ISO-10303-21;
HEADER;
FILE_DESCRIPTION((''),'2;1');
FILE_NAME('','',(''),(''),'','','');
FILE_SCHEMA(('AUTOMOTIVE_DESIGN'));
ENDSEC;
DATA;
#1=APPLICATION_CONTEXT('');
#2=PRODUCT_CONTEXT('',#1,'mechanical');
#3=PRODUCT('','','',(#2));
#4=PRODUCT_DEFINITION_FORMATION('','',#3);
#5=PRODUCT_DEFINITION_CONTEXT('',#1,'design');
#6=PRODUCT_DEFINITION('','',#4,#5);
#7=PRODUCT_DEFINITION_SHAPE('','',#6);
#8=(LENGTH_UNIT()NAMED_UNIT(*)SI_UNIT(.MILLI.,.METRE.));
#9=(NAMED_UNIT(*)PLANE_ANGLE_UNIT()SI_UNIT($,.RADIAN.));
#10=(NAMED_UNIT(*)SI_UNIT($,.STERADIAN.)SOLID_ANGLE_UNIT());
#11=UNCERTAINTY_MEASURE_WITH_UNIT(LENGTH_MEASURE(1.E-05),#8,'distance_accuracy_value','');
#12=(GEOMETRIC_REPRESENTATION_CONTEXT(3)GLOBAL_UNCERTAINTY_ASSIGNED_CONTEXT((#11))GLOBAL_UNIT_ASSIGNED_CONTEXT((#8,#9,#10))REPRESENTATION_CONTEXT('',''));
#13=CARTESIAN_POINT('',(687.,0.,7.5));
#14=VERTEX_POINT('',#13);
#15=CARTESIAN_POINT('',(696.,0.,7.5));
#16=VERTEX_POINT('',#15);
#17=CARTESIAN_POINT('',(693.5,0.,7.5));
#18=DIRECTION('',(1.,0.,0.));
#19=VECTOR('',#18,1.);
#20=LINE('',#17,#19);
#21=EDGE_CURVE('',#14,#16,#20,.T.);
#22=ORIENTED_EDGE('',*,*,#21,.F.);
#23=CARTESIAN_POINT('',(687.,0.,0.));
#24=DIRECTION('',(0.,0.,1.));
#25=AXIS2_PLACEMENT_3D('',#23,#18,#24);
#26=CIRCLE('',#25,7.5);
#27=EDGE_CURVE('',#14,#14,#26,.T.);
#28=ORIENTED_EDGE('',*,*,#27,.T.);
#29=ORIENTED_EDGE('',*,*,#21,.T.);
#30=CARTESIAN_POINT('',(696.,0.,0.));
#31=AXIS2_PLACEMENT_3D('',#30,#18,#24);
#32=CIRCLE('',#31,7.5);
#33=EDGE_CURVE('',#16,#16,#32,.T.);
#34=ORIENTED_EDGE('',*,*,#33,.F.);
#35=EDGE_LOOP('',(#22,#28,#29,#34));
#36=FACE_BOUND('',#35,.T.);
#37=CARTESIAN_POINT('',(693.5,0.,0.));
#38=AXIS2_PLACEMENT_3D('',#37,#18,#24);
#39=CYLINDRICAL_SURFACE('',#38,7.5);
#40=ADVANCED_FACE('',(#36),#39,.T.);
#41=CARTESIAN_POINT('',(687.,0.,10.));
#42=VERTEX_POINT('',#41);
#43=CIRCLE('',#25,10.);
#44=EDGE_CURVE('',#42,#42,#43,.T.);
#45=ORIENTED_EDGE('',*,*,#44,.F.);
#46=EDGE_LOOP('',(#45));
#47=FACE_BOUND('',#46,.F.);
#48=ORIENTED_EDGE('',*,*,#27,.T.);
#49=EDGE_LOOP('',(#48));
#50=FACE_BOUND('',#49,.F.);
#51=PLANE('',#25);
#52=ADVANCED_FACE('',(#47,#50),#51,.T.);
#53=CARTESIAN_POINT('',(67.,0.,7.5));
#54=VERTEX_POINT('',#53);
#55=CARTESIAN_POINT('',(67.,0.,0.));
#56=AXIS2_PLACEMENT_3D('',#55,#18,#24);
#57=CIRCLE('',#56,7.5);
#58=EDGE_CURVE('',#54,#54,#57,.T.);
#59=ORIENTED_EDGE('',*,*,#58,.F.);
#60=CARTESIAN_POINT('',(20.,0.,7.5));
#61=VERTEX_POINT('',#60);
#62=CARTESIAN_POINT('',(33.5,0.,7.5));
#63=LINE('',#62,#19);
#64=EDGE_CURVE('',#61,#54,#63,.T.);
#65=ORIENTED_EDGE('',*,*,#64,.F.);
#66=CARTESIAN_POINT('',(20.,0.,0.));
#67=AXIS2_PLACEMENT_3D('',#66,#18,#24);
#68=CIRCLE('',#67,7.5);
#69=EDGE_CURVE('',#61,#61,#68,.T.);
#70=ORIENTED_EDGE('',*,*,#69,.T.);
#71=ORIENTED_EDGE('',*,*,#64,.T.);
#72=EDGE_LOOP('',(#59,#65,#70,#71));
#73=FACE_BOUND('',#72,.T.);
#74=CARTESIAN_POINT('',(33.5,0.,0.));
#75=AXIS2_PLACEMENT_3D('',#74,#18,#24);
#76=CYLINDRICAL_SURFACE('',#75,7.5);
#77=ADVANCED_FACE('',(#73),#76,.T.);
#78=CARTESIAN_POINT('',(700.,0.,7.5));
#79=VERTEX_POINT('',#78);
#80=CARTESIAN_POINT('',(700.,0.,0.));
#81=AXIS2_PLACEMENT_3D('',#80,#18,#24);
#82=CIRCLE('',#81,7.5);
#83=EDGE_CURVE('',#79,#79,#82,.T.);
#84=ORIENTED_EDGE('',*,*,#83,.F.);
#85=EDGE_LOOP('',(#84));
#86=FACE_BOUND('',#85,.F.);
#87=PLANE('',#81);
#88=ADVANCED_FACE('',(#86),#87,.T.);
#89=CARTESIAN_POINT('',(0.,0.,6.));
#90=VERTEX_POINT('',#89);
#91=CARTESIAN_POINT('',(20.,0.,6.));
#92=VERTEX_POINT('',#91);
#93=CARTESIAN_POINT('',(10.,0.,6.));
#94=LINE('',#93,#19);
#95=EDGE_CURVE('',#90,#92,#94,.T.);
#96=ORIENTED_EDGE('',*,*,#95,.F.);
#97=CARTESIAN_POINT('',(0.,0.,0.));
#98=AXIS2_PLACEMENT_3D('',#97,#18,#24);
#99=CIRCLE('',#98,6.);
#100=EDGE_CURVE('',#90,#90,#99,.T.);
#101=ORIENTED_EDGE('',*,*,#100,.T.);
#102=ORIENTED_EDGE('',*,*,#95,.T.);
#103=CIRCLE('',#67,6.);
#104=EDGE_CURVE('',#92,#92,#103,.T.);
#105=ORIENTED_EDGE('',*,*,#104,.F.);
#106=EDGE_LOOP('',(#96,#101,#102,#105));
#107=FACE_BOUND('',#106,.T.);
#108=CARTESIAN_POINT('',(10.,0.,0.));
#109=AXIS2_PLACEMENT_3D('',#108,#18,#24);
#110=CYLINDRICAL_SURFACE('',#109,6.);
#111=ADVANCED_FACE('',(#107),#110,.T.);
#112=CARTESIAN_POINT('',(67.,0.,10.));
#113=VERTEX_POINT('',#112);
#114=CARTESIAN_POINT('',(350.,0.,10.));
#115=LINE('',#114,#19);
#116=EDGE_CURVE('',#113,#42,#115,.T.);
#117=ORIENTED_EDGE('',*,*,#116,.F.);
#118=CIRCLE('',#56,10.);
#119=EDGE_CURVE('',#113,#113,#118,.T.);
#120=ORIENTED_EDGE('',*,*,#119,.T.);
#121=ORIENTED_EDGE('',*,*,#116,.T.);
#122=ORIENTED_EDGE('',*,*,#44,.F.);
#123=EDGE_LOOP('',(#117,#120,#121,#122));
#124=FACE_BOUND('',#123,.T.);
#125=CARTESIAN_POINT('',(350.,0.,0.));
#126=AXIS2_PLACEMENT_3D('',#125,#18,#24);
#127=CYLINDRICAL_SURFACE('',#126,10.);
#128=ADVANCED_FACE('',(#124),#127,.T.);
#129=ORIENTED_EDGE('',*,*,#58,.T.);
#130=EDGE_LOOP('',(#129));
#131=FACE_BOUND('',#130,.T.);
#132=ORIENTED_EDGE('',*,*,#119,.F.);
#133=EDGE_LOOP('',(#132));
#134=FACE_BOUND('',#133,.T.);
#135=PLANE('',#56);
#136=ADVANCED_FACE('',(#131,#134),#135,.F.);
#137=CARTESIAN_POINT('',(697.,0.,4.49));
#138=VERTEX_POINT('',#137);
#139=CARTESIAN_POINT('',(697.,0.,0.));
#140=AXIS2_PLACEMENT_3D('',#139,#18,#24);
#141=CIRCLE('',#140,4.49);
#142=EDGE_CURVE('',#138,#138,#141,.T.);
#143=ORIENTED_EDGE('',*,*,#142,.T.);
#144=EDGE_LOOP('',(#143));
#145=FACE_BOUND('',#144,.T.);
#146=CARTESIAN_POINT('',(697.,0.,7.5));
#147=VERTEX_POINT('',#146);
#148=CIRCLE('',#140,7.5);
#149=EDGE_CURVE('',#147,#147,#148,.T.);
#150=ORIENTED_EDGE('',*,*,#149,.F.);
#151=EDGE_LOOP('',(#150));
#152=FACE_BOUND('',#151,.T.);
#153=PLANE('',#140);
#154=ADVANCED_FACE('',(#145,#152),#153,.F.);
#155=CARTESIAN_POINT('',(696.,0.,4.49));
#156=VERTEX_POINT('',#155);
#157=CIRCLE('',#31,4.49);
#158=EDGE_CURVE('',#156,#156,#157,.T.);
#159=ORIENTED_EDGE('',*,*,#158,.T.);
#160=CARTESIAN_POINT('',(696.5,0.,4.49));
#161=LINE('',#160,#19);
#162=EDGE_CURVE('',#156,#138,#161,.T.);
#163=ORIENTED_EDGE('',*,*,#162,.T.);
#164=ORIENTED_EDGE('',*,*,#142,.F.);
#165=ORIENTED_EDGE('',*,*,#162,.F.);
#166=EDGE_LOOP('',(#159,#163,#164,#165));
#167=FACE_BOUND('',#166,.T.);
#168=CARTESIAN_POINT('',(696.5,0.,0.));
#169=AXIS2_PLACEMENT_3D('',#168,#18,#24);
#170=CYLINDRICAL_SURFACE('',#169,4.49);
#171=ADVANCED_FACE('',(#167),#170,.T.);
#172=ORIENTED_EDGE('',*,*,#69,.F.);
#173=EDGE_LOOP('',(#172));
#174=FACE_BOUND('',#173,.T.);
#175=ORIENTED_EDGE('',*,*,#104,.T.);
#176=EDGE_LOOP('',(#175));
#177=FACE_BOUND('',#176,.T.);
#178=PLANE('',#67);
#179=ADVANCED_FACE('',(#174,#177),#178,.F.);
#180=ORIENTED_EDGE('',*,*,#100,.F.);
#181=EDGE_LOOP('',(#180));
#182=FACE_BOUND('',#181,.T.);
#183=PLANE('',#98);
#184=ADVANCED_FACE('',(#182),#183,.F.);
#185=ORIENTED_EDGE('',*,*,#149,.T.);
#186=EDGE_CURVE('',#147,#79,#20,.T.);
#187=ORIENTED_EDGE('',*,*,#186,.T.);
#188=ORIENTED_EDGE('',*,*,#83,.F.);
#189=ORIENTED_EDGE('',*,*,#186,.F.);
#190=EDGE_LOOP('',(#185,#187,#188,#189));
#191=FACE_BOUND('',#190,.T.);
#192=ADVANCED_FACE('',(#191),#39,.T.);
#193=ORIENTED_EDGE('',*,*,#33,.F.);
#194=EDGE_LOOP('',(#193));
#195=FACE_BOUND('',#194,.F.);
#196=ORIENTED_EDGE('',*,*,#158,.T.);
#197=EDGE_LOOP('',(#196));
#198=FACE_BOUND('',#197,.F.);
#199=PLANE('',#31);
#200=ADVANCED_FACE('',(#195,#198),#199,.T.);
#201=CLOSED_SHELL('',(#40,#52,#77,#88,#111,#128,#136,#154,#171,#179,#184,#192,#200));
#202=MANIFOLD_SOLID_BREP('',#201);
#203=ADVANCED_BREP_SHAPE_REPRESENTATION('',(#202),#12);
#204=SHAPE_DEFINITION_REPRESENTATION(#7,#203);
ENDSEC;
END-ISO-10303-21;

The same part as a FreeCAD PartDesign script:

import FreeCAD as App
import Part
import Sketcher
Q = App.Units.Quantity


def add_polygon(sketch, points):
    """Adds a closed chain of lines whose ends are joined by coincident constraints."""
    first, n = sketch.GeometryCount, len(points)
    for a, b in zip(points, points[1:] + points[:1]):
        sketch.addGeometry(Part.LineSegment(App.Vector(*a, 0), App.Vector(*b, 0)), False)
    for i in range(n):
        sketch.addConstraint(Sketcher.Constraint("Coincident", first + i, 2, first + (i + 1) % n, 1))

doc = App.newDocument("Part")
body = doc.addObject("PartDesign::Body", "Body")

sketch1 = doc.addObject("Sketcher::SketchObject", "Sketch")
body.addObject(sketch1)
sketch1.AttachmentSupport = (doc.XZ_Plane, [""])
sketch1.MapMode = "FlatFace"
add_polygon(sketch1, [(0, 10), (0, 0), (700, 0), (700, 10)])
sketch1.addConstraint([
    Sketcher.Constraint("Vertical", 0),
    Sketcher.Constraint("Horizontal", 1),
    Sketcher.Constraint("Vertical", 2),
    Sketcher.Constraint("Horizontal", 3),
    Sketcher.Constraint("Coincident", 0, 2, -1, 1),
    Sketcher.Constraint("DistanceX", 1, 1, 1, 2, Q("700 mm")),
    Sketcher.Constraint("DistanceY", 0, 2, 0, 1, Q("10 mm")),
])
revolution = doc.addObject("PartDesign::Revolution", "Revolution")
body.addObject(revolution)
revolution.Profile = sketch1
revolution.ReferenceAxis = (sketch1, ["H_Axis"])
revolution.Angle = 360

sketch2 = doc.addObject("Sketcher::SketchObject", "Sketch001")
body.addObject(sketch2)
sketch2.AttachmentSupport = (doc.XZ_Plane, [""])
sketch2.MapMode = "FlatFace"
add_polygon(sketch2, [(0, 10), (0, 7.5), (67, 7.5), (67, 10)])
sketch2.addConstraint([
    Sketcher.Constraint("Vertical", 0),
    Sketcher.Constraint("Horizontal", 1),
    Sketcher.Constraint("Vertical", 2),
    Sketcher.Constraint("Horizontal", 3),
    Sketcher.Constraint("PointOnObject", 0, 2, -2),
    Sketcher.Constraint("DistanceX", 1, 1, 1, 2, Q("67 mm")),
    Sketcher.Constraint("DistanceY", 0, 2, 0, 1, Q("2.5 mm")),
    Sketcher.Constraint("DistanceY", -1, 1, 2, 2, Q("10 mm")),
])
groove = doc.addObject("PartDesign::Groove", "Groove")
body.addObject(groove)
groove.Profile = sketch2
groove.ReferenceAxis = (sketch2, ["H_Axis"])
groove.Angle = 360

sketch3 = doc.addObject("Sketcher::SketchObject", "Sketch002")
body.addObject(sketch3)
sketch3.AttachmentSupport = (doc.XZ_Plane, [""])
sketch3.MapMode = "FlatFace"
add_polygon(sketch3, [(0, 7.5), (0, 6), (20, 6), (20, 7.5)])
sketch3.addConstraint([
    Sketcher.Constraint("Vertical", 0),
    Sketcher.Constraint("Horizontal", 1),
    Sketcher.Constraint("Vertical", 2),
    Sketcher.Constraint("Horizontal", 3),
    Sketcher.Constraint("PointOnObject", 0, 2, -2),
    Sketcher.Constraint("DistanceX", 1, 1, 1, 2, Q("20 mm")),
    Sketcher.Constraint("DistanceY", 0, 2, 0, 1, Q("1.5 mm")),
    Sketcher.Constraint("DistanceY", -1, 1, 0, 2, Q("6 mm")),
])
groove2 = doc.addObject("PartDesign::Groove", "Groove001")
body.addObject(groove2)
groove2.Profile = sketch3
groove2.ReferenceAxis = (sketch3, ["H_Axis"])
groove2.Angle = 360

sketch4 = doc.addObject("Sketcher::SketchObject", "Sketch003")
body.addObject(sketch4)
sketch4.AttachmentSupport = (doc.XZ_Plane, [""])
sketch4.MapMode = "FlatFace"
add_polygon(sketch4, [(687, 10), (687, 7.5), (696, 7.5), (696, 4.49), (697, 4.49), (697, 7.5), (700, 7.5), (700, 10)])
sketch4.addConstraint([
    Sketcher.Constraint("Vertical", 0),
    Sketcher.Constraint("Horizontal", 1),
    Sketcher.Constraint("Vertical", 2),
    Sketcher.Constraint("Horizontal", 3),
    Sketcher.Constraint("Vertical", 4),
    Sketcher.Constraint("Horizontal", 5),
    Sketcher.Constraint("Vertical", 6),
    Sketcher.Constraint("Horizontal", 7),
    Sketcher.Constraint("Horizontal", 1, 2, 4, 2),
    Sketcher.Constraint("DistanceX", 1, 1, 1, 2, Q("9 mm")),
    Sketcher.Constraint("DistanceX", 3, 1, 3, 2, Q("1 mm")),
    Sketcher.Constraint("DistanceX", 5, 1, 5, 2, Q("3 mm")),
    Sketcher.Constraint("DistanceY", 0, 2, 0, 1, Q("2.5 mm")),
    Sketcher.Constraint("DistanceX", -1, 1, 0, 2, Q("687 mm")),
    Sketcher.Constraint("DistanceY", -1, 1, 6, 2, Q("10 mm")),
    Sketcher.Constraint("DistanceY", 2, 2, 2, 1, Q("3.01 mm")),
])
groove3 = doc.addObject("PartDesign::Groove", "Groove002")
body.addObject(groove3)
groove3.Profile = sketch4
groove3.ReferenceAxis = (sketch4, ["H_Axis"])
groove3.Angle = 360

doc.recompute()
